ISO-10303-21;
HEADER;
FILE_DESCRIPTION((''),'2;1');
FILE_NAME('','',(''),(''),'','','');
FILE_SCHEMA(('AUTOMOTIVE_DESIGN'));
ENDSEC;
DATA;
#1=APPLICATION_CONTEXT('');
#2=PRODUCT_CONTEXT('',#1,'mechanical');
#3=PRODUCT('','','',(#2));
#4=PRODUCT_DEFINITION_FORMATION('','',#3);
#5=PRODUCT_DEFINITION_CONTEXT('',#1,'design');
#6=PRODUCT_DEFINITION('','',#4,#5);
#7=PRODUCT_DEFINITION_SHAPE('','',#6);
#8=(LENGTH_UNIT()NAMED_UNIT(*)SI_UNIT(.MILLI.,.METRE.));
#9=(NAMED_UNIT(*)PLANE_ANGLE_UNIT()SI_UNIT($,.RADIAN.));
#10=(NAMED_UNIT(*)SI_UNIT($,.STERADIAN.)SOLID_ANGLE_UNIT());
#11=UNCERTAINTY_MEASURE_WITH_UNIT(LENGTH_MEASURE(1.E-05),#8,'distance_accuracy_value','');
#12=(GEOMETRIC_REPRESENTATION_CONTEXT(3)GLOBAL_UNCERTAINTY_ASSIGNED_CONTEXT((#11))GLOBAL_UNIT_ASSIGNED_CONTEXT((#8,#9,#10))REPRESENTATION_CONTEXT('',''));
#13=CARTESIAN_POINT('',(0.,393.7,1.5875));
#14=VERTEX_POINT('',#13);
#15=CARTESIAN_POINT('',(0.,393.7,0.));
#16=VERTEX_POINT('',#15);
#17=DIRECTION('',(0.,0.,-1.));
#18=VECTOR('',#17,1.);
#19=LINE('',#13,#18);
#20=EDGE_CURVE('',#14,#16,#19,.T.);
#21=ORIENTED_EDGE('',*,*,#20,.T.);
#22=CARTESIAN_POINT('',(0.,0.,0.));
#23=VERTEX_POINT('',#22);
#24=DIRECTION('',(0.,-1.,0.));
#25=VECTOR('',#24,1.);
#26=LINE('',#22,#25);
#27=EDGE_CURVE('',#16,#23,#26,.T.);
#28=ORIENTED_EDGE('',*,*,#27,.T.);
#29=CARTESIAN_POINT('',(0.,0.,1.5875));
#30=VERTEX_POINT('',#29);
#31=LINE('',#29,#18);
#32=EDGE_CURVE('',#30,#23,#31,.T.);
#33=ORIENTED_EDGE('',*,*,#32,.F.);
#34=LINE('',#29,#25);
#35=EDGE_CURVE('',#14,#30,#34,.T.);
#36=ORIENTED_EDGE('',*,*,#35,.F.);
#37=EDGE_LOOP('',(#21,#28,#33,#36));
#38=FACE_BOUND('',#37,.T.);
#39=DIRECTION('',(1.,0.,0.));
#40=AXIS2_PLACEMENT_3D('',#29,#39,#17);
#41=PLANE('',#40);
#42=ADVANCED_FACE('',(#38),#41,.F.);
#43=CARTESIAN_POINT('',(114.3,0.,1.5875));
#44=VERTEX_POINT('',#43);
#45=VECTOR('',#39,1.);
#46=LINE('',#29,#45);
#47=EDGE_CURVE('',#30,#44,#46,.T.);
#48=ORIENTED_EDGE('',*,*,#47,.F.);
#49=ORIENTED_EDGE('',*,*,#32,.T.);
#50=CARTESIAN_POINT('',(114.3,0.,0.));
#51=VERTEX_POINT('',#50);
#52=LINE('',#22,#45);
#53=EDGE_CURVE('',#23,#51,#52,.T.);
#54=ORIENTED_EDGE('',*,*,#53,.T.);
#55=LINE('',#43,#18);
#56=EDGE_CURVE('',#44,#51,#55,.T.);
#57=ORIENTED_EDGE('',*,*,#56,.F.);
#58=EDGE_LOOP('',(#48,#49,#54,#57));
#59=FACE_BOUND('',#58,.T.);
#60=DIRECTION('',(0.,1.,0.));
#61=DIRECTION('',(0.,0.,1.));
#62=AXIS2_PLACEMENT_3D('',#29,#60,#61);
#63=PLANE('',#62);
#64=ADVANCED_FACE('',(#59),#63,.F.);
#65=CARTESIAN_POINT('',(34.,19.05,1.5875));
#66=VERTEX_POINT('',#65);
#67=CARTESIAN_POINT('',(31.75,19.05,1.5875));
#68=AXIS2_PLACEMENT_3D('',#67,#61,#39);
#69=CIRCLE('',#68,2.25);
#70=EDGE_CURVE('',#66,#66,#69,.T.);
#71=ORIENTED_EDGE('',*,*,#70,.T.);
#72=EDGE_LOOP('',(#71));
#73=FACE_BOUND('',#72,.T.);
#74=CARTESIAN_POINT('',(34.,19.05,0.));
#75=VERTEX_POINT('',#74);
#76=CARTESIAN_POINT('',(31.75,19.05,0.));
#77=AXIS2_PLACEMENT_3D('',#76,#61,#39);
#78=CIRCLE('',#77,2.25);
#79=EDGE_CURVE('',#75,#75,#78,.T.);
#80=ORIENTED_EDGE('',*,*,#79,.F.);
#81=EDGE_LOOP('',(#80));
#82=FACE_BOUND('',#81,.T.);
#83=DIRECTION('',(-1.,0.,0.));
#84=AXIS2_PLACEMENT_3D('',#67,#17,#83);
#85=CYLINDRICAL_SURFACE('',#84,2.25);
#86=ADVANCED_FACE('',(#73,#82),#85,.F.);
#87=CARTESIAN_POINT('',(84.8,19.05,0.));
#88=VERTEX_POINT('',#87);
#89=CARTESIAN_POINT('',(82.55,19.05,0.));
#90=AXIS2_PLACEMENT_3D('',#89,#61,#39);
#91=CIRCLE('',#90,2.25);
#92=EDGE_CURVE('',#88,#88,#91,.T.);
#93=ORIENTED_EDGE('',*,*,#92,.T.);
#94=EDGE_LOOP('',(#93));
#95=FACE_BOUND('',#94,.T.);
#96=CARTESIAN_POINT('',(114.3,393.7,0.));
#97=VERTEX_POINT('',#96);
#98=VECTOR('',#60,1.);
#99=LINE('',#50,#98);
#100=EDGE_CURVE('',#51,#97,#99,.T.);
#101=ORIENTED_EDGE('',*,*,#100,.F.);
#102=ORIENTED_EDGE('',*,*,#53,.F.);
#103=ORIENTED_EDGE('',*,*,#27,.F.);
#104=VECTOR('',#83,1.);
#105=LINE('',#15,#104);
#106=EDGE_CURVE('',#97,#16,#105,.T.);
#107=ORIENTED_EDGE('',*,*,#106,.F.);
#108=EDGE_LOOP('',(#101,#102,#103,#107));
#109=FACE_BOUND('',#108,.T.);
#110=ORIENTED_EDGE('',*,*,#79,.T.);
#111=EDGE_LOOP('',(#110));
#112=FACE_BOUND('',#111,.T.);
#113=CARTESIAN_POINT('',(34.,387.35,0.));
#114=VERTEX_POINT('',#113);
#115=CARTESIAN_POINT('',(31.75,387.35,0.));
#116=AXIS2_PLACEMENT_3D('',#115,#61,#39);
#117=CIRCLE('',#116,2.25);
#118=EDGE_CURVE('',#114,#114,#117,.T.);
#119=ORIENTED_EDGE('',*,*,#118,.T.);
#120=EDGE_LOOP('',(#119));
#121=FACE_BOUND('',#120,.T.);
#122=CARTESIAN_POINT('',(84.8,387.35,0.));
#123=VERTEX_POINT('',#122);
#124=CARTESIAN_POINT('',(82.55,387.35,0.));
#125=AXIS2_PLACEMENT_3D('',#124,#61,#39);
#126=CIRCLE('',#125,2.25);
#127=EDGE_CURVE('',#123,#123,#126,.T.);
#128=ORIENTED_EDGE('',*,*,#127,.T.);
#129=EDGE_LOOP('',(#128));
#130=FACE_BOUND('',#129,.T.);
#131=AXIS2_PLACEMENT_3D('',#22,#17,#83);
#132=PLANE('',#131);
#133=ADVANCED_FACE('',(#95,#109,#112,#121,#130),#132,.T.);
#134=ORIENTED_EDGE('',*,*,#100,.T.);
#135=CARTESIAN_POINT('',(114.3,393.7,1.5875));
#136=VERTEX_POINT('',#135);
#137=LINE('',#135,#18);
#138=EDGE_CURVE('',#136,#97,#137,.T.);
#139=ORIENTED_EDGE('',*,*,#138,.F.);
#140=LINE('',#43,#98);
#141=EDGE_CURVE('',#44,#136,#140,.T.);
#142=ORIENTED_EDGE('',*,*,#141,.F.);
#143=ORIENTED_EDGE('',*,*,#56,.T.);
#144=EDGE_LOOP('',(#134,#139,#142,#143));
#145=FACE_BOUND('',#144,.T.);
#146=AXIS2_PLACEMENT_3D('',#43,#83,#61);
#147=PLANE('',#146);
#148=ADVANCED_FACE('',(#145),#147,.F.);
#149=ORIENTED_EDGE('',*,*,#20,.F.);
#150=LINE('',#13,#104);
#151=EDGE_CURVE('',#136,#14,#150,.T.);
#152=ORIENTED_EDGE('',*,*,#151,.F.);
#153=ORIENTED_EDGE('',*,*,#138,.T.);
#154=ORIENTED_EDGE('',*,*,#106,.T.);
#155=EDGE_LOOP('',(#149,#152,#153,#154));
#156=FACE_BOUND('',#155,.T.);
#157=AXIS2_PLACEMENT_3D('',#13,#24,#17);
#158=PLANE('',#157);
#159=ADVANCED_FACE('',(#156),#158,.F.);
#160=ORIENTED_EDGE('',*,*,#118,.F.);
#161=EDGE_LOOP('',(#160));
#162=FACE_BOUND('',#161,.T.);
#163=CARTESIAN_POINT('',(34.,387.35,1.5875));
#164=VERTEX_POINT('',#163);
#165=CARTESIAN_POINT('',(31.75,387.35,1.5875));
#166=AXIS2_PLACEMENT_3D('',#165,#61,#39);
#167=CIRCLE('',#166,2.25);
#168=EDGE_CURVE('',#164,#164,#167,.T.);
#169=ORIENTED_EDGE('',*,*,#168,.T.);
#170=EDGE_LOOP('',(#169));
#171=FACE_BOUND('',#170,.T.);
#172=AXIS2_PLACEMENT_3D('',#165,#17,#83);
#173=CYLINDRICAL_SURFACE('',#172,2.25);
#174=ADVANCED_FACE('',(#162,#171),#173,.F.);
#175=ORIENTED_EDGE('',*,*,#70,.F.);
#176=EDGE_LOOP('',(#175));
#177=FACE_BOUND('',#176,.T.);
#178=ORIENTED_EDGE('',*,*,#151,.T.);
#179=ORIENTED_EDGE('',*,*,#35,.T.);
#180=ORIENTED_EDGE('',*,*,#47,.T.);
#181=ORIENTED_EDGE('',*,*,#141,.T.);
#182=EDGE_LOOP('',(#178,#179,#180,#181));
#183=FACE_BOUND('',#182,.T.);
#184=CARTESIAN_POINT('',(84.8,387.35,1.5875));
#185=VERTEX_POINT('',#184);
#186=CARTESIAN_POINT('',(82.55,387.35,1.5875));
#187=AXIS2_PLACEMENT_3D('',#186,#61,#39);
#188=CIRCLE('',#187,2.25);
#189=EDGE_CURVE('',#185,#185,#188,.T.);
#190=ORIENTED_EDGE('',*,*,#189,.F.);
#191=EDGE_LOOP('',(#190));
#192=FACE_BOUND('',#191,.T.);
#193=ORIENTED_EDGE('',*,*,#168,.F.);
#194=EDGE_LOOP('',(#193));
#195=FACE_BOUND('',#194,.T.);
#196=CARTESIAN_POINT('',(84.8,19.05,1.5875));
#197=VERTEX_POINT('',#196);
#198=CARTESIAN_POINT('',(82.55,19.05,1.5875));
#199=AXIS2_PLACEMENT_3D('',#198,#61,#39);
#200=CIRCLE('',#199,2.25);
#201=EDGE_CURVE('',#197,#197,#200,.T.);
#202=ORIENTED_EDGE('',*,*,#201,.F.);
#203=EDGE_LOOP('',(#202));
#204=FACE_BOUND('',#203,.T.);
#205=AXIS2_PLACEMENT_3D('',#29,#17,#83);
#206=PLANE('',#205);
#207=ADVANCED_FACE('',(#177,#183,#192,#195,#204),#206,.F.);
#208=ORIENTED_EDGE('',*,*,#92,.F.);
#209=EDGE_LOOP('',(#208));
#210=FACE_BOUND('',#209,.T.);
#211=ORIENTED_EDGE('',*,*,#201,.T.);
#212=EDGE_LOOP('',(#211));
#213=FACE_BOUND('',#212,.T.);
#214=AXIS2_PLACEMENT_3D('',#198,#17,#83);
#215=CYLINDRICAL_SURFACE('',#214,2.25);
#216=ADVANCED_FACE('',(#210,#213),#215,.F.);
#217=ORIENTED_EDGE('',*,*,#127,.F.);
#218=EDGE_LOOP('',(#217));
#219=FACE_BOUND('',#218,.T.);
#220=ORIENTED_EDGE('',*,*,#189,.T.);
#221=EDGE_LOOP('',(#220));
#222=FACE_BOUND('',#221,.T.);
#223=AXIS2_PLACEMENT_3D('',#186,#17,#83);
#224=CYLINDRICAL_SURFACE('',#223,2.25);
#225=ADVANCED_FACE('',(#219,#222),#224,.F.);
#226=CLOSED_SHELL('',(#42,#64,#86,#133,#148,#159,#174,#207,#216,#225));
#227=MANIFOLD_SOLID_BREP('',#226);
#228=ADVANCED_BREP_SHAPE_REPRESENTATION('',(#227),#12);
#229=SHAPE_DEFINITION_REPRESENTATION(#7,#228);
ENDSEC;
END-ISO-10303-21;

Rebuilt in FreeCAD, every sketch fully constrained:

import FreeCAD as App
import Part
import Sketcher
from FreeCAD import Vector
Q = App.Units.Quantity


def add_polygon(sketch, points):
    """Adds a closed chain of lines whose ends are joined by coincident constraints."""
    first, n = sketch.GeometryCount, len(points)
    for a, b in zip(points, points[1:] + points[:1]):
        sketch.addGeometry(Part.LineSegment(App.Vector(*a, 0), App.Vector(*b, 0)), False)
    for i in range(n):
        sketch.addConstraint(Sketcher.Constraint("Coincident", first + i, 2, first + (i + 1) % n, 1))

doc = App.newDocument("Part")
params = doc.addObject("Spreadsheet::Sheet", "Params")
for row, (alias, value) in enumerate([
    ("sketch1_width", "4.5 in"),
    ("sketch1_height", "15.5 in"),
    ("pad1_length", "0.0625 in"),
], start=1):
    params.set(f"A{row}", alias)
    params.set(f"B{row}", "=" + value)
    params.setAlias(f"B{row}", alias)

body = doc.addObject("PartDesign::Body", "Body")

# Sketch on XY plane
sketch1 = doc.addObject("Sketcher::SketchObject", "Sketch")
body.addObject(sketch1)
sketch1.AttachmentSupport = (doc.XY_Plane, [""])
sketch1.MapMode = "FlatFace"
add_polygon(sketch1, [(0, 393.7), (0, 0), (114.3, 0), (114.3, 393.7)])  # lines 0-3
sketch1.addGeometry(Part.Circle(Vector(31.8, 19.1, 0), Vector(0, 0, 1), 2.2), False)  # 4
sketch1.addGeometry(Part.Circle(Vector(82.5, 19.1, 0), Vector(0, 0, 1), 2.2), False)  # 5
sketch1.addGeometry(Part.Circle(Vector(31.8, 387.4, 0), Vector(0, 0, 1), 2.2), False)  # 6
sketch1.addGeometry(Part.Circle(Vector(82.5, 387.4, 0), Vector(0, 0, 1), 2.2), False)  # 7
sketch1.addConstraint(Sketcher.Constraint("Vertical", 0))
sketch1.addConstraint(Sketcher.Constraint("Horizontal", 1))
sketch1.addConstraint(Sketcher.Constraint("Vertical", 2))
sketch1.addConstraint(Sketcher.Constraint("Horizontal", 3))
sketch1.addConstraint(Sketcher.Constraint("Coincident", 0, 2, -1, 1))
sketch1.addConstraint(Sketcher.Constraint("Equal", 4, 5))
sketch1.addConstraint(Sketcher.Constraint("Equal", 5, 6))
sketch1.addConstraint(Sketcher.Constraint("Equal", 6, 7))
sketch1.addConstraint(Sketcher.Constraint("Horizontal", 4, 3, 5, 3))
sketch1.addConstraint(Sketcher.Constraint("Horizontal", 6, 3, 7, 3))
sketch1.addConstraint(Sketcher.Constraint("Vertical", 4, 3, 6, 3))
sketch1.addConstraint(Sketcher.Constraint("Vertical", 5, 3, 7, 3))
sketch1.addConstraint(Sketcher.Constraint("DistanceX", 1, 1, 1, 2, Q("4.5 in")))
sketch1.addConstraint(Sketcher.Constraint("DistanceY", 0, 2, 0, 1, Q("15.5 in")))
sketch1.addConstraint(Sketcher.Constraint("DistanceX", 4, 3, 5, 3, Q("2 in")))
sketch1.addConstraint(Sketcher.Constraint("DistanceY", 4, 3, 6, 3, Q("14.5 in")))
sketch1.addConstraint(Sketcher.Constraint("Diameter", 4, 4.5))
sketch1.addConstraint(Sketcher.Constraint("DistanceX", -1, 1, 4, 3, Q("1.25 in")))
sketch1.addConstraint(Sketcher.Constraint("DistanceY", -1, 1, 4, 3, Q("0.75 in")))
sketch1.setExpression("Constraints[16]", "Params.sketch1_width")
sketch1.setExpression("Constraints[17]", "Params.sketch1_height")
pad1 = doc.addObject("PartDesign::Pad", "Pad")
body.addObject(pad1)
pad1.Profile = sketch1
pad1.setExpression("Length", "Params.pad1_length")

doc.recompute()
